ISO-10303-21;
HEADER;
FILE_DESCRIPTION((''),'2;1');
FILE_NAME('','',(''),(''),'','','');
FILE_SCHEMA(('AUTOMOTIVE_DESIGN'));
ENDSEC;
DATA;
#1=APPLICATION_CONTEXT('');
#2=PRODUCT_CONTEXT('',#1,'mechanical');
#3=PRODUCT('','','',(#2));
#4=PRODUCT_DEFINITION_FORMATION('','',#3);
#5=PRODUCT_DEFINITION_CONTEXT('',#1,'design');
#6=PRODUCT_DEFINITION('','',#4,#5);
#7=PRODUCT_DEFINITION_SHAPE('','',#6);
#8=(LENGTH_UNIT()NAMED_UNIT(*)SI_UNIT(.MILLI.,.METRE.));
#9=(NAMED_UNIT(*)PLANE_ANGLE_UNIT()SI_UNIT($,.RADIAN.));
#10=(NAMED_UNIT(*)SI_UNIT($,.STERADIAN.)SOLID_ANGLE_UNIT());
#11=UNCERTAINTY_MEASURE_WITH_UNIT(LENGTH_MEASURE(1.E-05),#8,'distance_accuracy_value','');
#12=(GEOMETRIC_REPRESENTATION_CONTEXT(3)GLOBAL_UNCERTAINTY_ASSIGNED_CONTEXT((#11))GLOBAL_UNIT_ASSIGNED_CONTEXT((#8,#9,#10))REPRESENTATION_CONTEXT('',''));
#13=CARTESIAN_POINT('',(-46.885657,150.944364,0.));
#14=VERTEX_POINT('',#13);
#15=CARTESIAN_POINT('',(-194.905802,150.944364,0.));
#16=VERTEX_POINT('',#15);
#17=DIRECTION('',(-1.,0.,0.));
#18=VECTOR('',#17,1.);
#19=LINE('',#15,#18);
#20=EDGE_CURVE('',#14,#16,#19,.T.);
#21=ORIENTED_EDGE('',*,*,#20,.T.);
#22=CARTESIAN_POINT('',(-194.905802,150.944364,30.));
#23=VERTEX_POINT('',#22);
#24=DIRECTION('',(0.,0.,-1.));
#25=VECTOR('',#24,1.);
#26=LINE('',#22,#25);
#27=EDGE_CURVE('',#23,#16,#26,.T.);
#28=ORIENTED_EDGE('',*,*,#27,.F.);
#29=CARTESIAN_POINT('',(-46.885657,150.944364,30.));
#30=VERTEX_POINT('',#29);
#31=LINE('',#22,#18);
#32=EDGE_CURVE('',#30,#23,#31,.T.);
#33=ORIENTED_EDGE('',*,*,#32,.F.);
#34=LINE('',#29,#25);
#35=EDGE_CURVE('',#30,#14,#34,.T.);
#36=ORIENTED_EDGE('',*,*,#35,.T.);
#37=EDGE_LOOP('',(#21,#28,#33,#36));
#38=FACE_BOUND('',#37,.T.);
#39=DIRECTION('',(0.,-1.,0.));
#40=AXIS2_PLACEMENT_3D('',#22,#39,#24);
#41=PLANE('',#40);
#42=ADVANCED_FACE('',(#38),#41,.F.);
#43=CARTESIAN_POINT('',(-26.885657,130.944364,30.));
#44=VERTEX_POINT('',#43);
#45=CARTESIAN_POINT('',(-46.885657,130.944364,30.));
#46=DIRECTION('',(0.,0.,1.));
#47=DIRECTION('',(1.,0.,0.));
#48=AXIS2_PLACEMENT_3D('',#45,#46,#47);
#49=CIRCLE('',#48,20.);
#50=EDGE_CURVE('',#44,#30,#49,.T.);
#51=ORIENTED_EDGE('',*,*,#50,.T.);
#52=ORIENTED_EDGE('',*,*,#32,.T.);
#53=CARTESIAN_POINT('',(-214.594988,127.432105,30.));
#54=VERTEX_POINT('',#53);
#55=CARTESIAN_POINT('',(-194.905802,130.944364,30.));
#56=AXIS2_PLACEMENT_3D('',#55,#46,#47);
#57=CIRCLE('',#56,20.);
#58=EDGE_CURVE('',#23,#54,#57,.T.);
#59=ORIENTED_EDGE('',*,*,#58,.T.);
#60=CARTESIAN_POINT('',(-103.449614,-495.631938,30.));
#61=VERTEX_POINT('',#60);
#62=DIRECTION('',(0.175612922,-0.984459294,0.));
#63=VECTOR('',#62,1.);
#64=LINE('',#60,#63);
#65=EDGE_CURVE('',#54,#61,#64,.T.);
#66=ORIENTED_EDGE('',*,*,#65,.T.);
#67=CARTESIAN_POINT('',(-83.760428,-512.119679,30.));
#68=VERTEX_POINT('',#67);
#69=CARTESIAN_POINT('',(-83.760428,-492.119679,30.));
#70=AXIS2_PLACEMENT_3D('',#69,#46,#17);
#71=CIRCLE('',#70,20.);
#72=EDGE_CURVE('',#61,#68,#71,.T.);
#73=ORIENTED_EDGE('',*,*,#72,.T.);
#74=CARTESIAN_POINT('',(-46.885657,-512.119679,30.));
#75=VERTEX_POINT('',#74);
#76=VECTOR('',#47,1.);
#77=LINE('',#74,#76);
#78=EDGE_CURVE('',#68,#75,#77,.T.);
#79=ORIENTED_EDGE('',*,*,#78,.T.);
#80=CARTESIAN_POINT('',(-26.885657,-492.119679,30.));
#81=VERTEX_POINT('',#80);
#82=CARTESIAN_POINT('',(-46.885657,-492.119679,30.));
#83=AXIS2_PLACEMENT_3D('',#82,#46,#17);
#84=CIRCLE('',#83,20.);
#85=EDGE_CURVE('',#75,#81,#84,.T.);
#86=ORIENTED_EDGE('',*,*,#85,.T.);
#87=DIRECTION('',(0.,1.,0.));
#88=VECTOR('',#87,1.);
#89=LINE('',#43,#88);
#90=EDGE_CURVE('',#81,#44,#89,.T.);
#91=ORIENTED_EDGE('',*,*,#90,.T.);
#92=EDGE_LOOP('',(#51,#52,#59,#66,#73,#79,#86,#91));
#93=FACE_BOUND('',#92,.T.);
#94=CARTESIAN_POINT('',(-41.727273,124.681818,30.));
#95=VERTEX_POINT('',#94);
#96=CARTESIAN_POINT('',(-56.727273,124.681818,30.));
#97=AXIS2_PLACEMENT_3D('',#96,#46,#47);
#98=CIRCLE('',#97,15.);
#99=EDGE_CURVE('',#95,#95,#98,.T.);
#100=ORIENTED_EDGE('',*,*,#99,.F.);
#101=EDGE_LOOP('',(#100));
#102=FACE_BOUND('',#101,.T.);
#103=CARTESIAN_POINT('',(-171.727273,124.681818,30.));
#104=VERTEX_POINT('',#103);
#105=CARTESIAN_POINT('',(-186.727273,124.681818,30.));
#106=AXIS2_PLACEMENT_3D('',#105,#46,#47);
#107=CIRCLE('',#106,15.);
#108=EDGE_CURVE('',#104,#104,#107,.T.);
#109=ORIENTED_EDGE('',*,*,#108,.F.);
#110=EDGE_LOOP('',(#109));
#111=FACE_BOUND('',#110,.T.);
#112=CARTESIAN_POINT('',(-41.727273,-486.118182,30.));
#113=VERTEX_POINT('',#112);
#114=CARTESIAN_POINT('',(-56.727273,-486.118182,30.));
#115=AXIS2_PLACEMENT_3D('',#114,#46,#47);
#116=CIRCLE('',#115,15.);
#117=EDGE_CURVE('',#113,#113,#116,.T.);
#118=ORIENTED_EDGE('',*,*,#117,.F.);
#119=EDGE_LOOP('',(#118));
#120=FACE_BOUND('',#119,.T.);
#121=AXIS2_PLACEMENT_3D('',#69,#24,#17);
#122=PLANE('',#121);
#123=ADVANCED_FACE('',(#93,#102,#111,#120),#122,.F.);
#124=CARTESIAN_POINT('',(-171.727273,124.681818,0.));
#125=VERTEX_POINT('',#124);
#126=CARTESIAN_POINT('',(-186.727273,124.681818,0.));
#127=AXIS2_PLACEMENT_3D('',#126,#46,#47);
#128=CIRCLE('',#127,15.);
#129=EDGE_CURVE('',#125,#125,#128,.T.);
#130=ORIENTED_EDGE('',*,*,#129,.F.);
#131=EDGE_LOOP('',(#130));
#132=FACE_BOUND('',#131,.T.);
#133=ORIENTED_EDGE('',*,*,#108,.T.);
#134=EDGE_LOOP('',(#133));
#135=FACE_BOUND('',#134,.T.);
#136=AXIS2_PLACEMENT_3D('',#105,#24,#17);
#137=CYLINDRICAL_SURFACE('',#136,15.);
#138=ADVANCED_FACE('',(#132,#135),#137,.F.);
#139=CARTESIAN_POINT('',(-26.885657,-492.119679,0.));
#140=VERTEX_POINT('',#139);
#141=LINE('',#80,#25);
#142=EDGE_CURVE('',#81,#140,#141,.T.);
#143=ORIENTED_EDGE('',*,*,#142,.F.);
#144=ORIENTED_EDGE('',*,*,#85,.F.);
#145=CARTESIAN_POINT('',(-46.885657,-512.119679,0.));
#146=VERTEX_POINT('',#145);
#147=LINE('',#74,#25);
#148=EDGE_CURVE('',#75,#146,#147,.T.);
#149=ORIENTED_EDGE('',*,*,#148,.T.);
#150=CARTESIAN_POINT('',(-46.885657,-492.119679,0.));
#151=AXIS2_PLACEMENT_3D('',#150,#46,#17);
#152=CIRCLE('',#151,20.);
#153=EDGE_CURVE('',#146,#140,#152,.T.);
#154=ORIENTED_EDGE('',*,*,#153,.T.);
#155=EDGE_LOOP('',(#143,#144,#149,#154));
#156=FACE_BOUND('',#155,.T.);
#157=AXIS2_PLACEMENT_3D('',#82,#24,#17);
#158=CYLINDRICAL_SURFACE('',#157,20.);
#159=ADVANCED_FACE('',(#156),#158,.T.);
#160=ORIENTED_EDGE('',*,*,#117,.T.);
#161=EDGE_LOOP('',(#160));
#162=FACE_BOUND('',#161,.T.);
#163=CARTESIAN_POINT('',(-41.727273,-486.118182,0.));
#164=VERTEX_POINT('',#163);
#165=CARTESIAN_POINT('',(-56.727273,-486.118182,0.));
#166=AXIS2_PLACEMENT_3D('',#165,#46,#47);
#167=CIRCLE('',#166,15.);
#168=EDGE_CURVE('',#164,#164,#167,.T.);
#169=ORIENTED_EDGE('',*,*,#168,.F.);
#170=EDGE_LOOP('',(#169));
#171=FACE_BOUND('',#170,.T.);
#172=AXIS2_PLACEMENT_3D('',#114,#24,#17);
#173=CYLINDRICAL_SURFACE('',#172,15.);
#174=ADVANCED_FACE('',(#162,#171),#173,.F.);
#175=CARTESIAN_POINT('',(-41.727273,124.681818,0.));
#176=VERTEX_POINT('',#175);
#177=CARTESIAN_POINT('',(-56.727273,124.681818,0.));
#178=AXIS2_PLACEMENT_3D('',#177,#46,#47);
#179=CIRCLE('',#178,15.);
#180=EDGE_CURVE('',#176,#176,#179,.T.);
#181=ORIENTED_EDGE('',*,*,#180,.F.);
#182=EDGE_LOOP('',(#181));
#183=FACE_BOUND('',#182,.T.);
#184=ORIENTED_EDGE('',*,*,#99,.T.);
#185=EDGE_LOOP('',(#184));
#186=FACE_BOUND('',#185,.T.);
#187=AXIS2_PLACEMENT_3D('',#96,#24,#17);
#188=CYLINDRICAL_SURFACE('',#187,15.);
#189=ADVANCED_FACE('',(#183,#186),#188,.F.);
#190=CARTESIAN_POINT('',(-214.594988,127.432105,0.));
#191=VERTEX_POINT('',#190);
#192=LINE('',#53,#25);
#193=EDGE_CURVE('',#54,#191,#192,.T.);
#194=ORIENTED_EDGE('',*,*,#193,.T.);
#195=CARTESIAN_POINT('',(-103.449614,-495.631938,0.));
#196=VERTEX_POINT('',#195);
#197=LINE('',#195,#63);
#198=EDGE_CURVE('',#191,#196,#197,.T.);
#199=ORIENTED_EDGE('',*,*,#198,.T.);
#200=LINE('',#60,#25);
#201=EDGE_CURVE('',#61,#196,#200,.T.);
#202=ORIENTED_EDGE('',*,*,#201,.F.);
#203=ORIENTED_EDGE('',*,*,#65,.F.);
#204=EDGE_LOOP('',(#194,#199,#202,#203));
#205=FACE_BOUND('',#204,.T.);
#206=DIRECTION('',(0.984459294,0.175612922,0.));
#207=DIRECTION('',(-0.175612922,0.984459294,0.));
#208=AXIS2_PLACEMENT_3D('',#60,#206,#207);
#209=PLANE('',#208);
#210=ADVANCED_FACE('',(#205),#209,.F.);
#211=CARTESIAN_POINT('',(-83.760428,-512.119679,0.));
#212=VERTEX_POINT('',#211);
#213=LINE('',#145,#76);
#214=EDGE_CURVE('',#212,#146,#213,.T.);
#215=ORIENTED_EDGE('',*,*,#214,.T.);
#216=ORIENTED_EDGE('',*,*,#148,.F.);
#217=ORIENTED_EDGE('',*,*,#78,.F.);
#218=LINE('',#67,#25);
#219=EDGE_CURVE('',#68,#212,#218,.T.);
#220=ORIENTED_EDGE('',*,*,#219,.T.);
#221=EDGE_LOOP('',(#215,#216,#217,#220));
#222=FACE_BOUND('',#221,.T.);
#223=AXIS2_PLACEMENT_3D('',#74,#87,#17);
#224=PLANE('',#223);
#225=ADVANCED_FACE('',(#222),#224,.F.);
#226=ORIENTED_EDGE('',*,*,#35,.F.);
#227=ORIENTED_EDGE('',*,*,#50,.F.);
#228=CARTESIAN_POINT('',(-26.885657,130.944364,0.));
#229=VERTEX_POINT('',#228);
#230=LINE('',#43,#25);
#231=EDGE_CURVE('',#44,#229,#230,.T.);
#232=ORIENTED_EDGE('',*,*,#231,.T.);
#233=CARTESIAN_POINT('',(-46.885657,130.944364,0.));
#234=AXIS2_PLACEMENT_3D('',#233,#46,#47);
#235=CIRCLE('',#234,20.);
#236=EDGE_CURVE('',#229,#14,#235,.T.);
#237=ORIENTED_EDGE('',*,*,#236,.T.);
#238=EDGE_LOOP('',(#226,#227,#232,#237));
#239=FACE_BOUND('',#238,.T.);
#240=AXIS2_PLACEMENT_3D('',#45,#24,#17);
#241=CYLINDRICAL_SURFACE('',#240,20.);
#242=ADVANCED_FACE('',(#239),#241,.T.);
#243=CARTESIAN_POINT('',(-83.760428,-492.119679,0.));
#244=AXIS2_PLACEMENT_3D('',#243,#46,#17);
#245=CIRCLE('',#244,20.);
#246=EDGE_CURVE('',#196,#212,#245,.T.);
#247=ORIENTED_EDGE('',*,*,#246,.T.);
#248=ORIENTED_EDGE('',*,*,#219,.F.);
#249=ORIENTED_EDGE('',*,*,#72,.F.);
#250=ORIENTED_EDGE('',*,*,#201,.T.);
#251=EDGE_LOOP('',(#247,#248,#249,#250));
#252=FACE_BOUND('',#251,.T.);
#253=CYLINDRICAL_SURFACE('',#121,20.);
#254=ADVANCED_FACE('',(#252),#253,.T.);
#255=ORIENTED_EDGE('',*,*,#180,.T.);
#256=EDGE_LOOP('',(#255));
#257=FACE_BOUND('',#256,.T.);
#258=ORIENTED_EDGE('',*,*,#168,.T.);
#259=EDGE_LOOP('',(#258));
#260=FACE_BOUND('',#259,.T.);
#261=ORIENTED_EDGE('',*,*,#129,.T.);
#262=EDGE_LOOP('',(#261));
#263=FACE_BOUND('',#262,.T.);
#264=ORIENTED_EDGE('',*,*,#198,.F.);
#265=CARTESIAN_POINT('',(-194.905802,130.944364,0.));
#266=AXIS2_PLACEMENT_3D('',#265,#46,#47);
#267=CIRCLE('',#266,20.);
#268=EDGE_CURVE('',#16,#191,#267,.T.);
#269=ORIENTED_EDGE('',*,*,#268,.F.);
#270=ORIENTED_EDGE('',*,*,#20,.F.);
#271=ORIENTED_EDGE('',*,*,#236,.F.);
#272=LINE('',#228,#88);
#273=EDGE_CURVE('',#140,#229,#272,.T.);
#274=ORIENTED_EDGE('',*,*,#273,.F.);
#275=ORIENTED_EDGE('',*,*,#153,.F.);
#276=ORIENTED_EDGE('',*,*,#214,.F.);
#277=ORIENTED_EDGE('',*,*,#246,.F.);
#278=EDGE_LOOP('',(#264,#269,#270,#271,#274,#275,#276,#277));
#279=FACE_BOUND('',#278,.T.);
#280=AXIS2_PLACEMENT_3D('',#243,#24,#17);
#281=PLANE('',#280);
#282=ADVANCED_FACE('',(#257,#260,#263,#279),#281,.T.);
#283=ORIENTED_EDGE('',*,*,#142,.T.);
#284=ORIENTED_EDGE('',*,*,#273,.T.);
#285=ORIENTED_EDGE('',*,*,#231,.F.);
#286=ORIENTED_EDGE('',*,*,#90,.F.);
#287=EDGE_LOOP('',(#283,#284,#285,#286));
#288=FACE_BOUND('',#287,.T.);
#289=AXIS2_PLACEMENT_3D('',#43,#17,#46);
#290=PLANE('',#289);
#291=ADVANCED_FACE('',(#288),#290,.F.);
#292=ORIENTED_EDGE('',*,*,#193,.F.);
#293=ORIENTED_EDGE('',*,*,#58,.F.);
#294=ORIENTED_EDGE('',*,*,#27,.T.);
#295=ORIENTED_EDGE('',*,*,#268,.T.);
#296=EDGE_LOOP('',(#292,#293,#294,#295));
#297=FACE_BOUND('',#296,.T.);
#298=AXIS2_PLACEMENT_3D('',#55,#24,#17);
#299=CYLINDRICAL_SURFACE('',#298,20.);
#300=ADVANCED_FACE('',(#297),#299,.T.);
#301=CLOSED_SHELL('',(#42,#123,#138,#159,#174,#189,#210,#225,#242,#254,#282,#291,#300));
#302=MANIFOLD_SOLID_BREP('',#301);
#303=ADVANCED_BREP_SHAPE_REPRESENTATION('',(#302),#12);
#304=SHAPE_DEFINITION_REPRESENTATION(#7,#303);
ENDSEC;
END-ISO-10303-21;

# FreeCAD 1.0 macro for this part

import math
import FreeCAD as App
import Part
import Sketcher

V = App.Vector

doc = App.newDocument("Part")
body = doc.addObject("PartDesign::Body", "Body")

sketch1 = body.newObject("Sketcher::SketchObject", "Sketch")
sketch1.AttachmentSupport = (doc.getObject("XY_Plane"), [""])
sketch1.MapMode = "FlatFace"
sketch1.addGeometry([
    Part.LineSegment(V(-47, 151, 0), V(-195, 151, 0)),
    Part.ArcOfCircle(Part.Circle(V(-195, 131, 0), V(0, 0, 1), 20), math.radians(90), math.radians(190)),
    Part.LineSegment(V(-215, 127, 0), V(-103, -496, 0)),
    Part.ArcOfCircle(Part.Circle(V(-84, -492, 0), V(0, 0, 1), 20), math.radians(-170), math.radians(-90)),
    Part.LineSegment(V(-84, -512, 0), V(-47, -512, 0)),
    Part.ArcOfCircle(Part.Circle(V(-47, -492, 0), V(0, 0, 1), 20), math.radians(-90), math.radians(0)),
    Part.LineSegment(V(-27, -492, 0), V(-27, 131, 0)),
    Part.ArcOfCircle(Part.Circle(V(-47, 131, 0), V(0, 0, 1), 20), math.radians(0), math.radians(90)),
    Part.Circle(V(-57, -486, 0), V(0, 0, 1), 15),
    Part.Circle(V(-57, 125, 0), V(0, 0, 1), 15),
    Part.Circle(V(-187, 125, 0), V(0, 0, 1), 15),
], False)
sketch1.addConstraint([
    Sketcher.Constraint("Tangent", 0, 2, 1, 1),
    Sketcher.Constraint("Tangent", 1, 2, 2, 1),
    Sketcher.Constraint("Tangent", 2, 2, 3, 1),
    Sketcher.Constraint("Tangent", 3, 2, 4, 1),
    Sketcher.Constraint("Tangent", 4, 2, 5, 1),
    Sketcher.Constraint("Tangent", 5, 2, 6, 1),
    Sketcher.Constraint("Tangent", 6, 2, 7, 1),
    Sketcher.Constraint("Tangent", 7, 2, 0, 1),
    Sketcher.Constraint("Horizontal", 0),
    Sketcher.Constraint("Horizontal", 4),
    Sketcher.Constraint("Vertical", 6),
    Sketcher.Constraint("Equal", 1, 3),
    Sketcher.Constraint("Equal", 3, 5),
    Sketcher.Constraint("Equal", 5, 7),
    Sketcher.Constraint("Equal", 8, 9),
    Sketcher.Constraint("Equal", 9, 10),
    Sketcher.Constraint("Horizontal", 9, 3, 10, 3),
    Sketcher.Constraint("Vertical", 8, 3, 9, 3),
    Sketcher.Constraint("Diameter", 8, 30.0),
    Sketcher.Constraint("Radius", 1, 20.0),
    Sketcher.Constraint("DistanceX", 10, 3, 9, 3, 130.0),
    Sketcher.Constraint("DistanceY", 8, 3, 9, 3, 610.8),
    Sketcher.Constraint("DistanceX", 4, 1, 4, 2, 36.874771),
    Sketcher.Constraint("DistanceX", 0, 2, 0, 1, 148.020145),
    Sketcher.Constraint("DistanceY", 6, 1, 6, 2, 623.064043),
    Sketcher.Constraint("DistanceY", 3, 3, -1, 1, 492.119679),
    Sketcher.Constraint("DistanceY", 8, 3, -1, 1, 486.118182),
    Sketcher.Constraint("DistanceX", 1, 2, -1, 1, 214.594988),
    Sketcher.Constraint("DistanceX", 1, 3, 8, 3, 138.17853),
])
pad1 = body.newObject("PartDesign::Pad", "Pad")
pad1.Profile = sketch1
pad1.Length = 30

doc.recompute()
